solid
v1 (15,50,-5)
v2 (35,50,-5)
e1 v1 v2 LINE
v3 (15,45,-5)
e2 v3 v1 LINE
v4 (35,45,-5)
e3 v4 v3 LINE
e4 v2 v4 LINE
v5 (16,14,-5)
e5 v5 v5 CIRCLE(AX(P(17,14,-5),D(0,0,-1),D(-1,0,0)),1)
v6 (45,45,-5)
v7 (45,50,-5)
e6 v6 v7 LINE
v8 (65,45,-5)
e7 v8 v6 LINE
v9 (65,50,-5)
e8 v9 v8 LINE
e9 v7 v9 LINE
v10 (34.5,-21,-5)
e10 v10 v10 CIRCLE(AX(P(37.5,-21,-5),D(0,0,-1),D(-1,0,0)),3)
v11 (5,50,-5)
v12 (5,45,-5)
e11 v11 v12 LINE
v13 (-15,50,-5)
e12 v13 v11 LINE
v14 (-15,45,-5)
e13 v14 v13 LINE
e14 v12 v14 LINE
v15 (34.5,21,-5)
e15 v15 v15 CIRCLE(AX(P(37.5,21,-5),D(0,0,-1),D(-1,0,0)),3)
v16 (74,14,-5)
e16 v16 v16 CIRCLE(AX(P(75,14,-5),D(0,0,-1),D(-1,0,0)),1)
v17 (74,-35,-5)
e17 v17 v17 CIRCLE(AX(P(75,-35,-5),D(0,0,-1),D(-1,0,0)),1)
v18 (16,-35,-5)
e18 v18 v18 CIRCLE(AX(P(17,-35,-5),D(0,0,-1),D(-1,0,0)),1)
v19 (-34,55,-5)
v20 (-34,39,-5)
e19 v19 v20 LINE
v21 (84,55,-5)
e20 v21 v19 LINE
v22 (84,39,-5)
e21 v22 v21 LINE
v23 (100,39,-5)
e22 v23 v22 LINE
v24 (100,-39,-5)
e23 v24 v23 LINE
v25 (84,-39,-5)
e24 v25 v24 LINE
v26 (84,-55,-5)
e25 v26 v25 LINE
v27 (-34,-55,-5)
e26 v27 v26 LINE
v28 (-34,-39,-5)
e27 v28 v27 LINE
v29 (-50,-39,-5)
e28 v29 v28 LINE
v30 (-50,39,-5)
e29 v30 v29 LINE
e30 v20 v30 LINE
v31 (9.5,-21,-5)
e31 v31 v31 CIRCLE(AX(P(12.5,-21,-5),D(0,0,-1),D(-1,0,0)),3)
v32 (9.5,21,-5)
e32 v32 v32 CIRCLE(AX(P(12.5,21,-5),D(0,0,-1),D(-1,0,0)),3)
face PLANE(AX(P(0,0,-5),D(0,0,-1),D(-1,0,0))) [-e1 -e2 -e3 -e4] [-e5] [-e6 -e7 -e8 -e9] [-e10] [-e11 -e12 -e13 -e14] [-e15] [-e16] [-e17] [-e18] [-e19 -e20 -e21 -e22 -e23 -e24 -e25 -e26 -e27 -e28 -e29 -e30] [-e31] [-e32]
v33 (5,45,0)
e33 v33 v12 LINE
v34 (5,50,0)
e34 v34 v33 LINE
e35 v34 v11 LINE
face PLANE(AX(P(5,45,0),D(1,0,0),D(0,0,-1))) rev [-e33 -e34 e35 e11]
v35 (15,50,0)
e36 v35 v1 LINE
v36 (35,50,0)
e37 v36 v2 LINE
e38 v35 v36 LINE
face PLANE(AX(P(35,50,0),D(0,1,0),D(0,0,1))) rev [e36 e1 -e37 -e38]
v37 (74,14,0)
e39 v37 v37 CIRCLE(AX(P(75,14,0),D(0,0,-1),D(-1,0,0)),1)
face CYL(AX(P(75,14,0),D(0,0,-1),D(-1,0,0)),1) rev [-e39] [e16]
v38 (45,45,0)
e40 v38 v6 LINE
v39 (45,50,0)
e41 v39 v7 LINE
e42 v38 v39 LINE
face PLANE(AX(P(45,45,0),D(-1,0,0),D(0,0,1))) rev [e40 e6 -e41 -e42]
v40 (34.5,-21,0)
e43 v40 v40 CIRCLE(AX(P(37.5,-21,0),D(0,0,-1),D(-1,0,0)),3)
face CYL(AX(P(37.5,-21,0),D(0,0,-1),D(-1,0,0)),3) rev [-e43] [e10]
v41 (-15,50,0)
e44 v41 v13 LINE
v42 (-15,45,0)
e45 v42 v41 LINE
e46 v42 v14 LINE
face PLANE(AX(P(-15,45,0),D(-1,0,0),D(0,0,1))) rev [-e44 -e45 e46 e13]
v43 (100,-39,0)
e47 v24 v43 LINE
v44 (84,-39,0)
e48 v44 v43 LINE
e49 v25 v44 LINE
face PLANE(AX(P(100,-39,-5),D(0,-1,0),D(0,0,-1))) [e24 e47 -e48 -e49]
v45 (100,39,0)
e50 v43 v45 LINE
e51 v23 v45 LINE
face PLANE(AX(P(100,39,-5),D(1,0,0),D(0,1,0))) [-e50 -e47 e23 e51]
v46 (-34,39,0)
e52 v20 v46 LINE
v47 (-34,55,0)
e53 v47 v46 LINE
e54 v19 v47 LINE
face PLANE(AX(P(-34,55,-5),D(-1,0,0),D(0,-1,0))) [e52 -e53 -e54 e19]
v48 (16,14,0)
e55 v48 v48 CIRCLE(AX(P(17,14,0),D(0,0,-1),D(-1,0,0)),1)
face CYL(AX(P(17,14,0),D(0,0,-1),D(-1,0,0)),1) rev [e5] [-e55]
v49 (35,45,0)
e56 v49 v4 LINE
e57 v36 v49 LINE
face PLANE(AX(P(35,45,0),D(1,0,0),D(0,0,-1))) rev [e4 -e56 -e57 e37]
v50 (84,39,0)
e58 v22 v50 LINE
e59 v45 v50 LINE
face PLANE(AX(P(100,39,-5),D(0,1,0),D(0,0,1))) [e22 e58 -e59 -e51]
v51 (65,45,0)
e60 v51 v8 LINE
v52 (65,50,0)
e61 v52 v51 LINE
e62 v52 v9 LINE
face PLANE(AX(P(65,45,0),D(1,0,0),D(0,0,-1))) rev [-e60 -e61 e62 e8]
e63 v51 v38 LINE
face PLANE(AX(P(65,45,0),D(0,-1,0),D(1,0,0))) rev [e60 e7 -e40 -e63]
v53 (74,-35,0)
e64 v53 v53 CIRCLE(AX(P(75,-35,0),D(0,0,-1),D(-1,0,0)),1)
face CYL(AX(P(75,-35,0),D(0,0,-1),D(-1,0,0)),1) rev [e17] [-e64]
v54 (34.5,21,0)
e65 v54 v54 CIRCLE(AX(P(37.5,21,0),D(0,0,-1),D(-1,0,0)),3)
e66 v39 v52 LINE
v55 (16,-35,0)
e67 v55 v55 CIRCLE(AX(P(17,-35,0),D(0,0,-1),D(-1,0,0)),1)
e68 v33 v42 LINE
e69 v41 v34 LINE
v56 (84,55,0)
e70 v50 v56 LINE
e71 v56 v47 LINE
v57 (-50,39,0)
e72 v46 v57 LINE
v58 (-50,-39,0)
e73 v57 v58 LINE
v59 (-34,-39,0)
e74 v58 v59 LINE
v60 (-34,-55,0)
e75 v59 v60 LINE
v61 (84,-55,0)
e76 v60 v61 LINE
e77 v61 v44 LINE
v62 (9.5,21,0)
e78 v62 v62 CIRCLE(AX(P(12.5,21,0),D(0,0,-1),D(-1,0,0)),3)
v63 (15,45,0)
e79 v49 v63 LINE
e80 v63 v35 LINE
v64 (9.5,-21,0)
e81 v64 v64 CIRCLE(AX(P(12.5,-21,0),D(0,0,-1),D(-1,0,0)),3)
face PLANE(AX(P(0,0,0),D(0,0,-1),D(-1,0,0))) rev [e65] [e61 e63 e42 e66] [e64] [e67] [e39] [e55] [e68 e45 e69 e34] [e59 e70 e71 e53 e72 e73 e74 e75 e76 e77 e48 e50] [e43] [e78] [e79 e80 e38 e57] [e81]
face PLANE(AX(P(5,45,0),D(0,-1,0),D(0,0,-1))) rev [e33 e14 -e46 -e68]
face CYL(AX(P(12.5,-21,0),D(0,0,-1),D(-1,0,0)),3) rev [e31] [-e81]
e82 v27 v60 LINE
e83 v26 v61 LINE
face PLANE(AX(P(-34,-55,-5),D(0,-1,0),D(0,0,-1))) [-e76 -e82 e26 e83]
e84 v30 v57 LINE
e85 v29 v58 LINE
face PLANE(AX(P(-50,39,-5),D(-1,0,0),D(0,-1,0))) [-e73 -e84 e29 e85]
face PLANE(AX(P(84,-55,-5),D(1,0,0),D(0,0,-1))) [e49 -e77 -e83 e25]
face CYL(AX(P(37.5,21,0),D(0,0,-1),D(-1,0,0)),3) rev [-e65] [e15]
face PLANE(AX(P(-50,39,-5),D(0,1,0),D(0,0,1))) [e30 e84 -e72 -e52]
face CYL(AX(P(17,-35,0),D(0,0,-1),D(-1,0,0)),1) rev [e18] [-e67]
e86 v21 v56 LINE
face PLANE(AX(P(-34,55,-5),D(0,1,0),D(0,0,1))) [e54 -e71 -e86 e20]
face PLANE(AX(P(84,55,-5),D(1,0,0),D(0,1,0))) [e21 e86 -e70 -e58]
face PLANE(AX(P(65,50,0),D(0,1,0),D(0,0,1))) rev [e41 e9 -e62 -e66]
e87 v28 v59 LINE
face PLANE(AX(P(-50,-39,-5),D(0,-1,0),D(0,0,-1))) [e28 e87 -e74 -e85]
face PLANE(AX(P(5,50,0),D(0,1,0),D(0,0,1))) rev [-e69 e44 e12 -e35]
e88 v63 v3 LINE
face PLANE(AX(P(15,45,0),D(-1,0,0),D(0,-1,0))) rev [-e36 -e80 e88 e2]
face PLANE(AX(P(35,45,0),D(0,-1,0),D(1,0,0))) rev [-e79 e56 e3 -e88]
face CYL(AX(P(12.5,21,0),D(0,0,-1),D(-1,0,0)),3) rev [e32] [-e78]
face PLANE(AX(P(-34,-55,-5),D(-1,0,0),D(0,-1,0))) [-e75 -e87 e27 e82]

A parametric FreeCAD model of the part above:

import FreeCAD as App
import Part
import Sketcher
Q = App.Units.Quantity


def add_polygon(sketch, points):
    """Adds a closed chain of lines whose ends are joined by coincident constraints."""
    first, n = sketch.GeometryCount, len(points)
    for a, b in zip(points, points[1:] + points[:1]):
        sketch.addGeometry(Part.LineSegment(App.Vector(*a, 0), App.Vector(*b, 0)), False)
    for i in range(n):
        sketch.addConstraint(Sketcher.Constraint("Coincident", first + i, 2, first + (i + 1) % n, 1))

doc = App.newDocument("Part")
body = doc.addObject("PartDesign::Body", "Body")

# Sketch on XY plane
sketch1 = body.newObject("Sketcher::SketchObject", "Sketch")
sketch1.AttachmentSupport = (doc.getObject("XY_Plane"), [""])
sketch1.MapMode = "FlatFace"
add_polygon(sketch1, [(84, 55), (-34, 55), (-34, 39), (-50, 39), (-50, -39), (-34, -39), (-34, -55), (84, -55), (84, -39), (100, -39), (100, 39), (84, 39)])  # lines 0-11
sketch1.addConstraint(Sketcher.Constraint("Horizontal", 0))
sketch1.addConstraint(Sketcher.Constraint("Vertical", 1))
sketch1.addConstraint(Sketcher.Constraint("Horizontal", 2))
sketch1.addConstraint(Sketcher.Constraint("Vertical", 3))
sketch1.addConstraint(Sketcher.Constraint("Horizontal", 4))
sketch1.addConstraint(Sketcher.Constraint("Vertical", 5))
sketch1.addConstraint(Sketcher.Constraint("Horizontal", 6))
sketch1.addConstraint(Sketcher.Constraint("Vertical", 7))
sketch1.addConstraint(Sketcher.Constraint("Horizontal", 8))
sketch1.addConstraint(Sketcher.Constraint("Vertical", 9))
sketch1.addConstraint(Sketcher.Constraint("Horizontal", 10))
sketch1.addConstraint(Sketcher.Constraint("Vertical", 11))
sketch1.addConstraint(Sketcher.Constraint("Symmetric", 1, 2, 4, 2, -1))
sketch1.addConstraint(Sketcher.Constraint("Symmetric", 7, 2, 10, 2, -1))
sketch1.addConstraint(Sketcher.Constraint("Horizontal", 4, 2, 7, 2))
sketch1.addConstraint(Sketcher.Constraint("Equal", 4, 8))
sketch1.addConstraint(Sketcher.Constraint("Equal", 10, 1))
sketch1.addConstraint(Sketcher.Constraint("Equal", 1, 5))
sketch1.addConstraint(Sketcher.Constraint("DistanceX", 0, 2, 0, 1, Q("118 mm")))
sketch1.addConstraint(Sketcher.Constraint("DistanceX", 2, 2, 2, 1, Q("16 mm")))
sketch1.addConstraint(Sketcher.Constraint("DistanceY", 3, 2, 3, 1, Q("78 mm")))
sketch1.addConstraint(Sketcher.Constraint("DistanceX", 0, 2, -1, 1, Q("34 mm")))
pad1 = body.newObject("PartDesign::Pad", "Pad")
pad1.Profile = sketch1
pad1.Length = 5
pad1.Reversed = True

# Sketch on XY plane
sketch2 = body.newObject("Sketcher::SketchObject", "Sketch001")
sketch2.AttachmentSupport = (doc.getObject("XY_Plane"), [""])
sketch2.MapMode = "FlatFace"
sketch2.AttachmentOffset = App.Placement(App.Vector(0, 0, -5), App.Rotation())
sketch2.addGeometry(Part.Circle(App.Vector(75, -35, 0), App.Vector(0, 0, 1), 1), False)
sketch2.addGeometry(Part.Circle(App.Vector(17, -35, 0), App.Vector(0, 0, 1), 1), False)
sketch2.addGeometry(Part.Circle(App.Vector(75, 14, 0), App.Vector(0, 0, 1), 1), False)
sketch2.addGeometry(Part.Circle(App.Vector(17, 14, 0), App.Vector(0, 0, 1), 1), False)
sketch2.addConstraint(Sketcher.Constraint("Equal", 0, 1))
sketch2.addConstraint(Sketcher.Constraint("Equal", 1, 2))
sketch2.addConstraint(Sketcher.Constraint("Equal", 2, 3))
sketch2.addConstraint(Sketcher.Constraint("Horizontal", 0, 3, 1, 3))
sketch2.addConstraint(Sketcher.Constraint("Horizontal", 2, 3, 3, 3))
sketch2.addConstraint(Sketcher.Constraint("Vertical", 0, 3, 2, 3))
sketch2.addConstraint(Sketcher.Constraint("Vertical", 1, 3, 3, 3))
sketch2.addConstraint(Sketcher.Constraint("Diameter", 0, Q("2 mm")))
sketch2.addConstraint(Sketcher.Constraint("DistanceX", -1, 1, 0, 3, Q("75 mm")))
sketch2.addConstraint(Sketcher.Constraint("DistanceY", 0, 3, -1, 1, Q("35 mm")))
sketch2.addConstraint(Sketcher.Constraint("DistanceX", -1, 1, 1, 3, Q("17 mm")))
sketch2.addConstraint(Sketcher.Constraint("DistanceY", -1, 1, 2, 3, Q("14 mm")))
pocket1 = body.newObject("PartDesign::Pocket", "Pocket")
pocket1.Profile = sketch2
pocket1.Type = "ThroughAll"
pocket1.Reversed = True

# Sketch on XY plane
sketch3 = body.newObject("Sketcher::SketchObject", "Sketch002")
sketch3.AttachmentSupport = (doc.getObject("XY_Plane"), [""])
sketch3.MapMode = "FlatFace"
sketch3.AttachmentOffset = App.Placement(App.Vector(0, 0, -5), App.Rotation())
sketch3.addGeometry(Part.Circle(App.Vector(37.5, -21, 0), App.Vector(0, 0, 1), 3), False)
sketch3.addGeometry(Part.Circle(App.Vector(37.5, 21, 0), App.Vector(0, 0, 1), 3), False)
sketch3.addGeometry(Part.Circle(App.Vector(12.5, 21, 0), App.Vector(0, 0, 1), 3), False)
sketch3.addGeometry(Part.Circle(App.Vector(12.5, -21, 0), App.Vector(0, 0, 1), 3), False)
sketch3.addConstraint(Sketcher.Constraint("Equal", 0, 1))
sketch3.addConstraint(Sketcher.Constraint("Equal", 1, 2))
sketch3.addConstraint(Sketcher.Constraint("Equal", 2, 3))
sketch3.addConstraint(Sketcher.Constraint("Symmetric", 0, 3, 1, 3, -1))
sketch3.addConstraint(Sketcher.Constraint("Symmetric", 2, 3, 3, 3, -1))
sketch3.addConstraint(Sketcher.Constraint("Horizontal", 1, 3, 2, 3))
sketch3.addConstraint(Sketcher.Constraint("Diameter", 0, Q("6 mm")))
sketch3.addConstraint(Sketcher.Constraint("DistanceY", 0, 3, -1, 1, Q("21 mm")))
sketch3.addConstraint(Sketcher.Constraint("DistanceX", 2, 3, 1, 3, Q("25 mm")))
sketch3.addConstraint(Sketcher.Constraint("DistanceX", -1, 1, 0, 3, Q("37.5 mm")))
pocket2 = body.newObject("PartDesign::Pocket", "Pocket001")
pocket2.Profile = sketch3
pocket2.Type = "ThroughAll"
pocket2.Reversed = True

# Sketch on XY plane
sketch4 = body.newObject("Sketcher::SketchObject", "Sketch003")
sketch4.AttachmentSupport = (doc.getObject("XY_Plane"), [""])
sketch4.MapMode = "FlatFace"
sketch4.AttachmentOffset = App.Placement(App.Vector(0, 0, -5), App.Rotation())
add_polygon(sketch4, [(65, 50), (65, 45), (45, 45), (45, 50)])  # lines 0-3
add_polygon(sketch4, [(35, 50), (35, 45), (15, 45), (15, 50)])  # lines 4-7
add_polygon(sketch4, [(5, 50), (5, 45), (-15, 45), (-15, 50)])  # lines 8-11
sketch4.addConstraint(Sketcher.Constraint("Vertical", 0))
sketch4.addConstraint(Sketcher.Constraint("Horizontal", 1))
sketch4.addConstraint(Sketcher.Constraint("Vertical", 2))
sketch4.addConstraint(Sketcher.Constraint("Horizontal", 3))
sketch4.addConstraint(Sketcher.Constraint("Vertical", 4))
sketch4.addConstraint(Sketcher.Constraint("Horizontal", 5))
sketch4.addConstraint(Sketcher.Constraint("Vertical", 6))
sketch4.addConstraint(Sketcher.Constraint("Horizontal", 7))
sketch4.addConstraint(Sketcher.Constraint("Vertical", 8))
sketch4.addConstraint(Sketcher.Constraint("Horizontal", 9))
sketch4.addConstraint(Sketcher.Constraint("Vertical", 10))
sketch4.addConstraint(Sketcher.Constraint("Horizontal", 11))
sketch4.addConstraint(Sketcher.Constraint("Symmetric", 5, 2, 9, 2, -2))
sketch4.addConstraint(Sketcher.Constraint("Horizontal", 1, 2, 4, 2))
sketch4.addConstraint(Sketcher.Constraint("Horizontal", 3, 2, 6, 2))
sketch4.addConstraint(Sketcher.Constraint("Horizontal", 7, 2, 10, 2))
sketch4.addConstraint(Sketcher.Constraint("Equal", 3, 5))
sketch4.addConstraint(Sketcher.Constraint("Equal", 7, 9))
sketch4.addConstraint(Sketcher.Constraint("DistanceX", 1, 2, 1, 1, Q("20 mm")))
sketch4.addConstraint(Sketcher.Constraint("DistanceY", 0, 2, 0, 1, Q("5 mm")))
sketch4.addConstraint(Sketcher.Constraint("DistanceX", -1, 1, 0, 2, Q("65 mm")))
sketch4.addConstraint(Sketcher.Constraint("DistanceY", -1, 1, 0, 2, Q("45 mm")))
sketch4.addConstraint(Sketcher.Constraint("DistanceX", -1, 1, 4, 2, Q("35 mm")))
pocket3 = body.newObject("PartDesign::Pocket", "Pocket002")
pocket3.Profile = sketch4
pocket3.Type = "ThroughAll"
pocket3.Reversed = True

doc.recompute()
